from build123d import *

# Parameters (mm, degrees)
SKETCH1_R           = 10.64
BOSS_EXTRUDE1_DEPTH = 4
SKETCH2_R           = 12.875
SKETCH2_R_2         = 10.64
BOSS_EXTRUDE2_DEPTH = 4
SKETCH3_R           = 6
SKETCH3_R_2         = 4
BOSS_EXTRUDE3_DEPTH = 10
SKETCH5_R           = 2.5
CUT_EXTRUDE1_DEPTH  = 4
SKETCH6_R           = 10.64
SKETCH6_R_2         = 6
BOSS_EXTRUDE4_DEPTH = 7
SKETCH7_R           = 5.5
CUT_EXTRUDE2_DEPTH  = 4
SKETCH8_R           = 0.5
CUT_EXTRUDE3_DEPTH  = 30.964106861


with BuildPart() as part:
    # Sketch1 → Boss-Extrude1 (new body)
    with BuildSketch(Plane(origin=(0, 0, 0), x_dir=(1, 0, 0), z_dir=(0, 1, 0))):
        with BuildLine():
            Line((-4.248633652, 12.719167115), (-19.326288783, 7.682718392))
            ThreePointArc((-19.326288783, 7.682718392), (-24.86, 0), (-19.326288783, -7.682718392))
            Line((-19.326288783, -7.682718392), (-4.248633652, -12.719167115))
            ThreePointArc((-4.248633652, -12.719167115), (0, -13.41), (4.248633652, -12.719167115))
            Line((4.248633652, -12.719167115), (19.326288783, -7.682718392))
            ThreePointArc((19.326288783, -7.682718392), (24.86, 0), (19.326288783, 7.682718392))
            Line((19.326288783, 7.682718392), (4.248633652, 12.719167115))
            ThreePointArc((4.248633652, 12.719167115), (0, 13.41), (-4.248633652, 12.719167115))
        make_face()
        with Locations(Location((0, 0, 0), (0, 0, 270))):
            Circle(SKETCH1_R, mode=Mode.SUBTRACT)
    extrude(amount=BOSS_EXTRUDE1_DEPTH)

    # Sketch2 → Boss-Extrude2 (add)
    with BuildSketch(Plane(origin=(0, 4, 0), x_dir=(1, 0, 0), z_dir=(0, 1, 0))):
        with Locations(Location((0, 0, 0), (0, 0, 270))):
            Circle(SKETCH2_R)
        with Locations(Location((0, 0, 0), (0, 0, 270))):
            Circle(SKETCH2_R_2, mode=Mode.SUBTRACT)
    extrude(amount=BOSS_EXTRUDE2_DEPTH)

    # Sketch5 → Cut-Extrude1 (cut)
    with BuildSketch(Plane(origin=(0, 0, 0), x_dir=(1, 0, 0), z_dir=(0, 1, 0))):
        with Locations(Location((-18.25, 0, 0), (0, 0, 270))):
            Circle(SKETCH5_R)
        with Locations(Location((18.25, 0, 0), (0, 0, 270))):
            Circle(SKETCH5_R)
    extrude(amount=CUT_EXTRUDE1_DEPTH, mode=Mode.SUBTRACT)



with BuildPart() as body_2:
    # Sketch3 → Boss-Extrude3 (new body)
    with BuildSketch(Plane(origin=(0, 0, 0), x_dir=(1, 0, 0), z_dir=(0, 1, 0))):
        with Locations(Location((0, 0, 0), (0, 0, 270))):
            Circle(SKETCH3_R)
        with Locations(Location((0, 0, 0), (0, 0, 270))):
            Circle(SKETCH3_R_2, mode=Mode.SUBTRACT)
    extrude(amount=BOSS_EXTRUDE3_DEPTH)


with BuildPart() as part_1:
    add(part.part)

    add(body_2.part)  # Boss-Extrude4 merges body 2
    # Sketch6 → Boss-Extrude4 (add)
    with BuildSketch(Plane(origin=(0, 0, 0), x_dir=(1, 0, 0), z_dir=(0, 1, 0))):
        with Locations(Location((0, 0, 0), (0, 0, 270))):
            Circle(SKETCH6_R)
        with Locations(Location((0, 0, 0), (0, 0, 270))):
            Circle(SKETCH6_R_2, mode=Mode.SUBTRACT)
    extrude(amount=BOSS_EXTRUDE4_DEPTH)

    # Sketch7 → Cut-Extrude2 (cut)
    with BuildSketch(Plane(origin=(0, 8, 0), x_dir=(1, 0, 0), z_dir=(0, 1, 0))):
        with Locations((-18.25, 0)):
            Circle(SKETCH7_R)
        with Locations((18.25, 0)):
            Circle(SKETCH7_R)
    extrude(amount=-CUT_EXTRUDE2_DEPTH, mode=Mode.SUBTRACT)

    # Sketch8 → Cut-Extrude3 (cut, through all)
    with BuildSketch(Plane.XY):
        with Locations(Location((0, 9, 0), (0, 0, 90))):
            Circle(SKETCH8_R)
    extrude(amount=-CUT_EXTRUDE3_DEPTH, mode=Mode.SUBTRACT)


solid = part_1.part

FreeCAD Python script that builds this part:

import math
import FreeCAD as App
import Part
import Sketcher

V = App.Vector
Q = App.Units.Quantity

doc = App.newDocument("Part")
body = doc.addObject("PartDesign::Body", "Body")

# Sketch on XZ plane
sketch1 = doc.addObject("Sketcher::SketchObject", "Sketch")
body.addObject(sketch1)
sketch1.AttachmentSupport = (doc.XZ_Plane, [""])
sketch1.MapMode = "FlatFace"
sketch1.addGeometry([
    Part.LineSegment(V(-4.248634, -12.719167, 0), V(-19.326289, -7.682718, 0)),  # 0
    Part.ArcOfCircle(Part.Circle(V(-16.76, 0, 0), V(0, 0, 1), 8.1), math.radians(108.471069), math.radians(251.528931)),  # 1
    Part.LineSegment(V(-19.326289, 7.682718, 0), V(-4.248634, 12.719167, 0)),  # 2
    Part.ArcOfCircle(Part.Circle(V(0, 0, 0), V(0, 0, 1), 13.41), math.radians(71.528931), math.radians(108.471069)),  # 3
    Part.LineSegment(V(4.248634, 12.719167, 0), V(19.326289, 7.682718, 0)),  # 4
    Part.ArcOfCircle(Part.Circle(V(16.76, 0, 0), V(0, 0, 1), 8.1), math.radians(-71.528931), math.radians(71.528931)),  # 5
    Part.LineSegment(V(19.326289, -7.682718, 0), V(4.248634, -12.719167, 0)),  # 6
    Part.ArcOfCircle(Part.Circle(V(0, 0, 0), V(0, 0, 1), 13.41), math.radians(-108.471069), math.radians(-71.528931)),  # 7
    Part.Circle(V(0, 0, 0), V(0, 0, 1), 10.64),  # 8
], False)
sketch1.addConstraint([
    Sketcher.Constraint("Tangent", 0, 2, 1, 2),
    Sketcher.Constraint("Tangent", 1, 1, 2, 1),
    Sketcher.Constraint("Tangent", 2, 2, 3, 2),
    Sketcher.Constraint("Tangent", 3, 1, 4, 1),
    Sketcher.Constraint("Tangent", 4, 2, 5, 2),
    Sketcher.Constraint("Tangent", 5, 1, 6, 1),
    Sketcher.Constraint("Tangent", 6, 2, 7, 2),
    Sketcher.Constraint("Tangent", 7, 1, 0, 1),
    Sketcher.Constraint("Coincident", 3, 3, -1, 1),
    Sketcher.Constraint("Coincident", 7, 3, -1, 1),
    Sketcher.Constraint("Coincident", 8, 3, -1, 1),
    Sketcher.Constraint("Equal", 1, 5),
    Sketcher.Constraint("Equal", 3, 7),
    Sketcher.Constraint("Symmetric", 1, 3, 5, 3, -1, 1),
    Sketcher.Constraint("PointOnObject", 1, 3, -1),
    Sketcher.Constraint("Radius", 1, Q("8.1 mm")),
    Sketcher.Constraint("Diameter", 8, Q("21.28 mm")),
    Sketcher.Constraint("Radius", 3, Q("13.41 mm")),
    Sketcher.Constraint("DistanceX", 1, 3, -1, 1, Q("16.76 mm")),
])
pad1 = doc.addObject("PartDesign::Pad", "Pad")
body.addObject(pad1)
pad1.Profile = sketch1
pad1.Length = 4
pad1.Reversed = True

# Sketch on XZ plane
sketch2 = doc.addObject("Sketcher::SketchObject", "Sketch001")
body.addObject(sketch2)
sketch2.AttachmentSupport = (doc.XZ_Plane, [""])
sketch2.MapMode = "FlatFace"
sketch2.AttachmentOffset = App.Placement(V(0, 0, -4), App.Rotation())
sketch2.addGeometry([
    Part.Circle(V(0, 0, 0), V(0, 0, 1), 12.875),
    Part.Circle(V(0, 0, 0), V(0, 0, 1), 10.64),
], False)
sketch2.addConstraint([
    Sketcher.Constraint("Coincident", 0, 3, -1, 1),
    Sketcher.Constraint("Coincident", 1, 3, -1, 1),
    Sketcher.Constraint("Diameter", 0, Q("25.75 mm")),
    Sketcher.Constraint("Diameter", 1, Q("21.28 mm")),
])
pad2 = doc.addObject("PartDesign::Pad", "Pad001")
body.addObject(pad2)
pad2.Profile = sketch2
pad2.Length = 4
pad2.Reversed = True

# Sketch on XZ plane
sketch3 = doc.addObject("Sketcher::SketchObject", "Sketch002")
body.addObject(sketch3)
sketch3.AttachmentSupport = (doc.XZ_Plane, [""])
sketch3.MapMode = "FlatFace"
sketch3.addGeometry([
    Part.Circle(V(-18.25, 0, 0), V(0, 0, 1), 2.5),
    Part.Circle(V(18.25, 0, 0), V(0, 0, 1), 2.5),
], False)
sketch3.addConstraint([
    Sketcher.Constraint("Equal", 0, 1),
    Sketcher.Constraint("Symmetric", 0, 3, 1, 3, -1, 1),
    Sketcher.Constraint("PointOnObject", 0, 3, -1),
    Sketcher.Constraint("Diameter", 0, Q("5 mm")),
    Sketcher.Constraint("DistanceX", 0, 3, 1, 3, Q("36.5 mm")),
])
pocket1 = doc.addObject("PartDesign::Pocket", "Pocket")
body.addObject(pocket1)
pocket1.Profile = sketch3
pocket1.Length = 4
body2 = doc.addObject("PartDesign::Body", "Body001")

# Sketch on XZ plane
sketch4 = doc.addObject("Sketcher::SketchObject", "Sketch003")
body2.addObject(sketch4)
sketch4.AttachmentSupport = (doc.getObject("XZ_Plane001"), [""])
sketch4.MapMode = "FlatFace"
sketch4.addGeometry([
    Part.Circle(V(0, 0, 0), V(0, 0, 1), 6),
    Part.Circle(V(0, 0, 0), V(0, 0, 1), 4),
], False)
sketch4.addConstraint([
    Sketcher.Constraint("Coincident", 0, 3, -1, 1),
    Sketcher.Constraint("Coincident", 1, 3, -1, 1),
    Sketcher.Constraint("Diameter", 0, Q("12 mm")),
    Sketcher.Constraint("Diameter", 1, Q("8 mm")),
])
pad3 = doc.addObject("PartDesign::Pad", "Pad002")
body2.addObject(pad3)
pad3.Profile = sketch4
pad3.Length = 10
pad3.Reversed = True
body.AllowCompound = True
doc.recompute()

boolean = doc.addObject("PartDesign::Boolean", "Boolean")
body.addObject(boolean)
boolean.Type = "Fuse"
boolean.addObjects([body2])

# Sketch on XZ plane
sketch5 = doc.addObject("Sketcher::SketchObject", "Sketch004")
body.addObject(sketch5)
sketch5.AttachmentSupport = (doc.XZ_Plane, [""])
sketch5.MapMode = "FlatFace"
sketch5.addGeometry([
    Part.Circle(V(0, 0, 0), V(0, 0, 1), 10.64),
    Part.Circle(V(0, 0, 0), V(0, 0, 1), 6),
], False)
sketch5.addConstraint([
    Sketcher.Constraint("Coincident", 0, 3, -1, 1),
    Sketcher.Constraint("Coincident", 1, 3, -1, 1),
    Sketcher.Constraint("Diameter", 1, Q("12 mm")),
    Sketcher.Constraint("Diameter", 0, Q("21.28 mm")),
])
pad4 = doc.addObject("PartDesign::Pad", "Pad003")
body.addObject(pad4)
pad4.Profile = sketch5
pad4.Length = 7
pad4.Reversed = True

# Sketch on XZ plane
sketch6 = doc.addObject("Sketcher::SketchObject", "Sketch005")
body.addObject(sketch6)
sketch6.AttachmentSupport = (doc.XZ_Plane, [""])
sketch6.MapMode = "FlatFace"
sketch6.AttachmentOffset = App.Placement(V(0, 0, -8), App.Rotation())
sketch6.addGeometry([
    Part.Circle(V(-18.25, 0, 0), V(0, 0, 1), 5.5),
    Part.Circle(V(18.25, 0, 0), V(0, 0, 1), 5.5),
], False)
sketch6.addConstraint([
    Sketcher.Constraint("Equal", 0, 1),
    Sketcher.Constraint("Symmetric", 0, 3, 1, 3, -1, 1),
    Sketcher.Constraint("PointOnObject", 0, 3, -1),
    Sketcher.Constraint("Diameter", 0, Q("11 mm")),
    Sketcher.Constraint("DistanceX", 0, 3, 1, 3, Q("36.5 mm")),
])
pocket2 = doc.addObject("PartDesign::Pocket", "Pocket001")
body.addObject(pocket2)
pocket2.Profile = sketch6
pocket2.Length = 4
pocket2.Reversed = True

# Sketch on XY plane
sketch7 = doc.addObject("Sketcher::SketchObject", "Sketch006")
body.addObject(sketch7)
sketch7.AttachmentSupport = (doc.XY_Plane, [""])
sketch7.MapMode = "FlatFace"
sketch7.addGeometry(Part.Circle(V(0, 9, 0), V(0, 0, 1), 0.5), False)
sketch7.addConstraint([
    Sketcher.Constraint("PointOnObject", 0, 3, -2),
    Sketcher.Constraint("Diameter", 0, Q("1 mm")),
    Sketcher.Constraint("DistanceY", -1, 1, 0, 3, Q("9 mm")),
])
pocket3 = doc.addObject("PartDesign::Pocket", "Pocket002")
body.addObject(pocket3)
pocket3.Profile = sketch7
pocket3.Type = "ThroughAll"

doc.recompute()
